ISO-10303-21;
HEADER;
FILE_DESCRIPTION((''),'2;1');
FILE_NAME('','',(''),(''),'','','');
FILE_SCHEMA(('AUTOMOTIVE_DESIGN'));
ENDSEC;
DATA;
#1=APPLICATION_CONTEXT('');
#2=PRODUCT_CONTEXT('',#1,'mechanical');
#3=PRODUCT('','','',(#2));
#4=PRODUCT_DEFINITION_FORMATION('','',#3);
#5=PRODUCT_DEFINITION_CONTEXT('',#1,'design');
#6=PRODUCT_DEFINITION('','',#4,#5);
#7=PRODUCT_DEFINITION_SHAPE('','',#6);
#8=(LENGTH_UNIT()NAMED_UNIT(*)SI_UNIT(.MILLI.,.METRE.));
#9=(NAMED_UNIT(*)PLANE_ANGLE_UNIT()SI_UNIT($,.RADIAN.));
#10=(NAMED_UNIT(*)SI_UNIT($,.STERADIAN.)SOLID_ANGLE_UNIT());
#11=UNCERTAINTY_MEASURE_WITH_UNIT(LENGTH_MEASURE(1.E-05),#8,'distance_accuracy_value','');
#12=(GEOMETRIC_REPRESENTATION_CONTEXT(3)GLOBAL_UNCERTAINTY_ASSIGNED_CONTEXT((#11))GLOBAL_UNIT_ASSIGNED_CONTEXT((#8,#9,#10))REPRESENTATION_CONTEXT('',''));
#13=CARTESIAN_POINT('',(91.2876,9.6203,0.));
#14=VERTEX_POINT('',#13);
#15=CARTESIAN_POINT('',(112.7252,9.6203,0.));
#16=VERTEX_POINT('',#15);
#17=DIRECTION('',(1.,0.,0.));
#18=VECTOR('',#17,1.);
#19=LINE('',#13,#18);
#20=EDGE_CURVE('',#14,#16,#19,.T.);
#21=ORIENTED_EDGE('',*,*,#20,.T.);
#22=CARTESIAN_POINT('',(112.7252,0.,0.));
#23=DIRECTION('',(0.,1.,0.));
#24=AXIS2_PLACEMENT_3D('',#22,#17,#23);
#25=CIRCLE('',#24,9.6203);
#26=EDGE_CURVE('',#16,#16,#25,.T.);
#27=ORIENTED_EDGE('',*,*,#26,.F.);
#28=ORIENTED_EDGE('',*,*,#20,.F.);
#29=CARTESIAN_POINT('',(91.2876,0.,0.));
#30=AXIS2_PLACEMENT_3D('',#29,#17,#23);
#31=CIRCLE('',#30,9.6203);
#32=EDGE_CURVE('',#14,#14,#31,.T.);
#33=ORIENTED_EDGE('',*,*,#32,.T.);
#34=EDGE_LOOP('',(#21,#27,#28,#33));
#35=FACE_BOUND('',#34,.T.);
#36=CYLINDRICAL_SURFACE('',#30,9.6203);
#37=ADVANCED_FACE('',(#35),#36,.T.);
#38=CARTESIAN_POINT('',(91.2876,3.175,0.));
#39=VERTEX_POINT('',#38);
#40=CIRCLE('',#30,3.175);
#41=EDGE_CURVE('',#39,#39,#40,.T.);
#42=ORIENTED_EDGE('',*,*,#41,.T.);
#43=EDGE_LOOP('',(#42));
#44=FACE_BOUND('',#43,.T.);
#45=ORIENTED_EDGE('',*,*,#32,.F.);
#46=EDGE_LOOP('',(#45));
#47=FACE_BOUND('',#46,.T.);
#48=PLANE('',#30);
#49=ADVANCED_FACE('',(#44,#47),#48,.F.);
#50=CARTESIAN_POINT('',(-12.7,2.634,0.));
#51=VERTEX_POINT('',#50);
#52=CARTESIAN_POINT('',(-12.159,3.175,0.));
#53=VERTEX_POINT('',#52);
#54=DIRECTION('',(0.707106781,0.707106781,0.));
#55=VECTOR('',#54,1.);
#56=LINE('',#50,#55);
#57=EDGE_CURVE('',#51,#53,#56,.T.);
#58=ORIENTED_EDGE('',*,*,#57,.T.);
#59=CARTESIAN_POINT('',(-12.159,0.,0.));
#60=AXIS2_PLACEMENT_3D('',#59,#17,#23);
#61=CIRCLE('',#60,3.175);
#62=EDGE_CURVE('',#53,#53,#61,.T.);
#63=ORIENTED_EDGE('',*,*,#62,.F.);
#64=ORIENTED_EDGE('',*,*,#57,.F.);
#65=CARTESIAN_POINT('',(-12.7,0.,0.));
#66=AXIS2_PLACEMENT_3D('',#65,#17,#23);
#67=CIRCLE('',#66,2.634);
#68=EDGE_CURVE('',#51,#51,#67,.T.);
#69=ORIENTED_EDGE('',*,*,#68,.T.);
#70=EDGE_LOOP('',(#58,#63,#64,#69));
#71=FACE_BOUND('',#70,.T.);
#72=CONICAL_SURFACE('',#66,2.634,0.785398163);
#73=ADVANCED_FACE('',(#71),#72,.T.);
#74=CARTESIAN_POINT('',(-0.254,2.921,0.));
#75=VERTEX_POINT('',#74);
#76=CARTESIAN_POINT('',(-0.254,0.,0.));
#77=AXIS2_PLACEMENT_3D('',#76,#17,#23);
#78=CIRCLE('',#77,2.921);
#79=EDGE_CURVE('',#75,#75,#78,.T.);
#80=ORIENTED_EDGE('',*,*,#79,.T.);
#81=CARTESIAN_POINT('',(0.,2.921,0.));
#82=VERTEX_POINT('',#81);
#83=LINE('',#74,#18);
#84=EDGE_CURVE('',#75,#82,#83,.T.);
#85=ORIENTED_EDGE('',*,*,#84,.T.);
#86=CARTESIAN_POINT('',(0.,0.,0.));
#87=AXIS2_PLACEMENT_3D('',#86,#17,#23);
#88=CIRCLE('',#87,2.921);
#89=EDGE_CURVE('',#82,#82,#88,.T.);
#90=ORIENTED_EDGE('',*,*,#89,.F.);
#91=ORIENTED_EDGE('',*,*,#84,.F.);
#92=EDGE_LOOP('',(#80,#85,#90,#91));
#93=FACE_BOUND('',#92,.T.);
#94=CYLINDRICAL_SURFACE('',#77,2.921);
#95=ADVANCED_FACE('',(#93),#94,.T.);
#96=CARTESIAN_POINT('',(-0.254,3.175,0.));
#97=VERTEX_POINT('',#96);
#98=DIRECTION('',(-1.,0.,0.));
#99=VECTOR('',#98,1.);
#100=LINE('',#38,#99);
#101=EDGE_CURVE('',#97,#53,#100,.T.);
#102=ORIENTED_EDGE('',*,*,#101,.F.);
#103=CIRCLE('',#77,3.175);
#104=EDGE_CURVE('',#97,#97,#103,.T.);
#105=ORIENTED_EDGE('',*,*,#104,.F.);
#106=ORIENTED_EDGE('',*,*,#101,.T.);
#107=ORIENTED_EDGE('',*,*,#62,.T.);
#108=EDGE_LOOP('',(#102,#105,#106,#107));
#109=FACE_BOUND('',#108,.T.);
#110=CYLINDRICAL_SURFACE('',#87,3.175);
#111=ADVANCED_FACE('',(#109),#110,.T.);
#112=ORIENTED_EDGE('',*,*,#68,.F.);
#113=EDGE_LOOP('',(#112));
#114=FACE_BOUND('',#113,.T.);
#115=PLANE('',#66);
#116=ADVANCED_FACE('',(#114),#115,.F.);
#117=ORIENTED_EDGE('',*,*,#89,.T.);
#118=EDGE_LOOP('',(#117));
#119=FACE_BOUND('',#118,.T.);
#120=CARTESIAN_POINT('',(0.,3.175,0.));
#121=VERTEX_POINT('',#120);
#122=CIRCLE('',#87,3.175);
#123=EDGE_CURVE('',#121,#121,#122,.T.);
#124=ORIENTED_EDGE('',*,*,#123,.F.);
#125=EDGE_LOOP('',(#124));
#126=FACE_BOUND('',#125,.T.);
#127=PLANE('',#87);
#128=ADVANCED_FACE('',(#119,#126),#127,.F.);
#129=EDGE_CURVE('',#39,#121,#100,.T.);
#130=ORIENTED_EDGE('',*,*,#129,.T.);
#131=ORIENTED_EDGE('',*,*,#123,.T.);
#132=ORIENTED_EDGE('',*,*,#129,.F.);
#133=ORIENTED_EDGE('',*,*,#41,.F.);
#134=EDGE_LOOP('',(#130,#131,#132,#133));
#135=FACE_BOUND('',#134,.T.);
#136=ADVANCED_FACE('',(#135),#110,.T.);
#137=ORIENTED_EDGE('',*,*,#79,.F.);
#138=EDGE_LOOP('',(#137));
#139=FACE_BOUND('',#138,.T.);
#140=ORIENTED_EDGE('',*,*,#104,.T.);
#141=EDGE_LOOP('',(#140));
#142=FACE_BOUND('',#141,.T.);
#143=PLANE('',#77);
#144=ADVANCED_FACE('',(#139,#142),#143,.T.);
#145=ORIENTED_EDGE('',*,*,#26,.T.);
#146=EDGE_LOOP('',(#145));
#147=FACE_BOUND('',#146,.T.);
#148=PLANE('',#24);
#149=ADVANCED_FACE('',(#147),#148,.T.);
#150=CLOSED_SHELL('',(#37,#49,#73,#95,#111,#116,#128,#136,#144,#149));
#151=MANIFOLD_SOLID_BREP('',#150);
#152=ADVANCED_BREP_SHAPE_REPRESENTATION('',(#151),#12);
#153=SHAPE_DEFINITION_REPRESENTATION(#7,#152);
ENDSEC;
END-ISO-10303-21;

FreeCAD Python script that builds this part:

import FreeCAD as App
import Part
import Sketcher
from FreeCAD import Vector
Q = App.Units.Quantity

doc = App.newDocument("Part")
body = doc.addObject("PartDesign::Body", "Body")

# Sketch on XY plane
sketch1 = body.newObject("Sketcher::SketchObject", "Sketch")
sketch1.AttachmentSupport = (doc.getObject("XY_Plane"), [""])
sketch1.MapMode = "FlatFace"
sketch1.addGeometry(Part.LineSegment(Vector(0, 0, 0), Vector(112.7252, 0, 0)), False)
sketch1.addGeometry(Part.LineSegment(Vector(112.7252, 0, 0), Vector(112.7252, 9.6203, 0)), False)
sketch1.addGeometry(Part.LineSegment(Vector(112.7252, 9.6203, 0), Vector(91.2876, 9.6203, 0)), False)
sketch1.addGeometry(Part.LineSegment(Vector(91.2876, 9.6203, 0), Vector(91.2876, 3.175, 0)), False)
sketch1.addGeometry(Part.LineSegment(Vector(91.2876, 3.175, 0), Vector(0, 3.175, 0)), False)
sketch1.addGeometry(Part.LineSegment(Vector(0, 3.175, 0), Vector(0, 0, 0)), False)
sketch1.addConstraint(Sketcher.Constraint("Coincident", 0, 2, 1, 1))
sketch1.addConstraint(Sketcher.Constraint("Coincident", 1, 2, 2, 1))
sketch1.addConstraint(Sketcher.Constraint("Coincident", 2, 2, 3, 1))
sketch1.addConstraint(Sketcher.Constraint("Coincident", 3, 2, 4, 1))
sketch1.addConstraint(Sketcher.Constraint("Coincident", 4, 2, 5, 1))
sketch1.addConstraint(Sketcher.Constraint("Coincident", 5, 2, 0, 1))
sketch1.addConstraint(Sketcher.Constraint("Horizontal", 0))
sketch1.addConstraint(Sketcher.Constraint("Vertical", 1))
sketch1.addConstraint(Sketcher.Constraint("Horizontal", 2))
sketch1.addConstraint(Sketcher.Constraint("Vertical", 3))
sketch1.addConstraint(Sketcher.Constraint("Horizontal", 4))
sketch1.addConstraint(Sketcher.Constraint("Vertical", 5))
sketch1.addConstraint(Sketcher.Constraint("Coincident", 5, 2, -1, 1))
sketch1.addConstraint(Sketcher.Constraint("DistanceX", 0, 1, 0, 2, Q("4.438 in")))
sketch1.addConstraint(Sketcher.Constraint("DistanceX", 2, 2, 2, 1, Q("0.844 in")))
sketch1.addConstraint(Sketcher.Constraint("DistanceY", 5, 2, 5, 1, Q("0.125 in")))
sketch1.addConstraint(Sketcher.Constraint("DistanceY", 1, 1, 1, 2, Q("9.6203 mm")))
revolution = body.newObject("PartDesign::Revolution", "Revolution")
revolution.Profile = sketch1
revolution.ReferenceAxis = (sketch1, ["H_Axis"])
revolution.Angle = 360

# Sketch on XY plane
sketch2 = body.newObject("Sketcher::SketchObject", "Sketch001")
sketch2.AttachmentSupport = (doc.getObject("XY_Plane"), [""])
sketch2.MapMode = "FlatFace"
sketch2.addGeometry(Part.LineSegment(Vector(-12.7, 0, 0), Vector(0, 0, 0)), False)
sketch2.addGeometry(Part.LineSegment(Vector(0, 0, 0), Vector(0, 3.175, 0)), False)
sketch2.addGeometry(Part.LineSegment(Vector(0, 3.175, 0), Vector(-12.159, 3.175, 0)), False)
sketch2.addGeometry(Part.LineSegment(Vector(-12.159, 3.175, 0), Vector(-12.7, 2.634, 0)), False)
sketch2.addGeometry(Part.LineSegment(Vector(-12.7, 2.634, 0), Vector(-12.7, 0, 0)), False)
sketch2.addConstraint(Sketcher.Constraint("Coincident", 0, 2, 1, 1))
sketch2.addConstraint(Sketcher.Constraint("Coincident", 1, 2, 2, 1))
sketch2.addConstraint(Sketcher.Constraint("Coincident", 2, 2, 3, 1))
sketch2.addConstraint(Sketcher.Constraint("Coincident", 3, 2, 4, 1))
sketch2.addConstraint(Sketcher.Constraint("Coincident", 4, 2, 0, 1))
sketch2.addConstraint(Sketcher.Constraint("Horizontal", 0))
sketch2.addConstraint(Sketcher.Constraint("Vertical", 1))
sketch2.addConstraint(Sketcher.Constraint("Horizontal", 2))
sketch2.addConstraint(Sketcher.Constraint("Vertical", 4))
sketch2.addConstraint(Sketcher.Constraint("Coincident", 0, 2, -1, 1))
sketch2.addConstraint(Sketcher.Constraint("DistanceX", 0, 1, 0, 2, Q("0.5 in")))
sketch2.addConstraint(Sketcher.Constraint("Angle", 3, Q("-135 deg")))
sketch2.addConstraint(Sketcher.Constraint("DistanceY", 1, 1, 1, 2, Q("0.125 in")))
sketch2.addConstraint(Sketcher.Constraint("DistanceX", 2, 2, 2, 1, Q("0.4787 in")))
revolution2 = body.newObject("PartDesign::Revolution", "Revolution001")
revolution2.Profile = sketch2
revolution2.ReferenceAxis = (sketch2, ["H_Axis"])
revolution2.Angle = 360

# Sketch on XY plane
sketch3 = body.newObject("Sketcher::SketchObject", "Sketch002")
sketch3.AttachmentSupport = (doc.getObject("XY_Plane"), [""])
sketch3.MapMode = "FlatFace"
sketch3.addGeometry(Part.LineSegment(Vector(-0.254, 3.429, 0), Vector(-0.254, 2.921, 0)), False)
sketch3.addGeometry(Part.LineSegment(Vector(-0.254, 2.921, 0), Vector(0, 2.921, 0)), False)
sketch3.addGeometry(Part.LineSegment(Vector(0, 2.921, 0), Vector(0, 3.429, 0)), False)
sketch3.addGeometry(Part.LineSegment(Vector(0, 3.429, 0), Vector(-0.254, 3.429, 0)), False)
sketch3.addConstraint(Sketcher.Constraint("Coincident", 0, 2, 1, 1))
sketch3.addConstraint(Sketcher.Constraint("Coincident", 1, 2, 2, 1))
sketch3.addConstraint(Sketcher.Constraint("Coincident", 2, 2, 3, 1))
sketch3.addConstraint(Sketcher.Constraint("Coincident", 3, 2, 0, 1))
sketch3.addConstraint(Sketcher.Constraint("Vertical", 0))
sketch3.addConstraint(Sketcher.Constraint("Horizontal", 1))
sketch3.addConstraint(Sketcher.Constraint("Vertical", 2))
sketch3.addConstraint(Sketcher.Constraint("Horizontal", 3))
sketch3.addConstraint(Sketcher.Constraint("PointOnObject", 1, 2, -2))
sketch3.addConstraint(Sketcher.Constraint("DistanceX", 1, 1, 1, 2, Q("0.01 in")))
sketch3.addConstraint(Sketcher.Constraint("DistanceY", 0, 2, 0, 1, Q("0.02 in")))
sketch3.addConstraint(Sketcher.Constraint("DistanceY", -1, 1, 0, 2, Q("0.115 in")))
groove = body.newObject("PartDesign::Groove", "Groove")
groove.Profile = sketch3
groove.ReferenceAxis = (sketch3, ["H_Axis"])
groove.Angle = 360

doc.recompute()
